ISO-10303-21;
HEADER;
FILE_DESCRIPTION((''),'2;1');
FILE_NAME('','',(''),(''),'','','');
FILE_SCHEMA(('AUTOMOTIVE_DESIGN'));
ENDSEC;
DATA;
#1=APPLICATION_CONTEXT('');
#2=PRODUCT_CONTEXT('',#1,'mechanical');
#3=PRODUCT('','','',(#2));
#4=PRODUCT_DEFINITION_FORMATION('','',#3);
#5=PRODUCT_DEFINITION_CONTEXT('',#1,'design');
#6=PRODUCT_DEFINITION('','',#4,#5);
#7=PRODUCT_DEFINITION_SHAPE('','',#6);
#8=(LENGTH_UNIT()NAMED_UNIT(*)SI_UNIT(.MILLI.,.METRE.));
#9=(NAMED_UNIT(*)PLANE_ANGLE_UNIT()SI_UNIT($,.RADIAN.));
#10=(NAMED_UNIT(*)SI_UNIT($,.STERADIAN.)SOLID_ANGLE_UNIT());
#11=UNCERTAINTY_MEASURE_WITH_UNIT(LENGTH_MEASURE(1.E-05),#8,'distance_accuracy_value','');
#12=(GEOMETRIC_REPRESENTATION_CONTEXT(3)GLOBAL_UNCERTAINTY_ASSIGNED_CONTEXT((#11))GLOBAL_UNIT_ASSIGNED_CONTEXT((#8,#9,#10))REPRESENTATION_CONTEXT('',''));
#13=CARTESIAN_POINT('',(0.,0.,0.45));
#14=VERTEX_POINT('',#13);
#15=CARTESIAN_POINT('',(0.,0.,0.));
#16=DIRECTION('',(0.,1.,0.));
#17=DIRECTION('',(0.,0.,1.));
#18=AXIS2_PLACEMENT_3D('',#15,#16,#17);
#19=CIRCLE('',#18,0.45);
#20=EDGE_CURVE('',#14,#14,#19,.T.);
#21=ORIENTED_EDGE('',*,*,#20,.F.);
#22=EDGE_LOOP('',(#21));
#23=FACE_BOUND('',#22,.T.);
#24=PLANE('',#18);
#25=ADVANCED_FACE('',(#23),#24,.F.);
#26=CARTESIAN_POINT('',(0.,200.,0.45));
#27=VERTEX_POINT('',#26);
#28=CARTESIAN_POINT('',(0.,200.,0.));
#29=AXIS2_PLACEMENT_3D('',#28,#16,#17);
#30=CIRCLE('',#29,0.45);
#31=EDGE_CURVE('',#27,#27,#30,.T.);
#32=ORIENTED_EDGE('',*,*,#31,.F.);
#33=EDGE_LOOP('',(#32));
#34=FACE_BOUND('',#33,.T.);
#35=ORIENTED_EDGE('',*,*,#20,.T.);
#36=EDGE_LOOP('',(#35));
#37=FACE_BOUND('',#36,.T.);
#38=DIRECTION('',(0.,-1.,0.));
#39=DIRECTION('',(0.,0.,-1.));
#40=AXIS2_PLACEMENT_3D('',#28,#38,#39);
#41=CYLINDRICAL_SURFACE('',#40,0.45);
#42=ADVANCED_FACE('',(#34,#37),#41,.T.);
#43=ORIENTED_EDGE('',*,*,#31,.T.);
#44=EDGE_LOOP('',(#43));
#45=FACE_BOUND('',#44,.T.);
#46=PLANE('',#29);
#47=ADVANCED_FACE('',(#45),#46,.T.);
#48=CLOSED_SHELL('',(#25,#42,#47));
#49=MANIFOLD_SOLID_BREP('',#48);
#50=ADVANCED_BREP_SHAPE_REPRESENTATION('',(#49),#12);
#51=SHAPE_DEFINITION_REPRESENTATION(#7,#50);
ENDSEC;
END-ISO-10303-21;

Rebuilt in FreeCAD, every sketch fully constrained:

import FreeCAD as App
import Part
import Sketcher
Q = App.Units.Quantity

doc = App.newDocument("Part")
body = doc.addObject("PartDesign::Body", "Body")

# Sketch on XZ plane
sketch1 = doc.addObject("Sketcher::SketchObject", "Sketch")
body.addObject(sketch1)
sketch1.AttachmentSupport = (doc.XZ_Plane, [""])
sketch1.MapMode = "FlatFace"
sketch1.addGeometry(Part.Circle(App.Vector(0, 0, 0), App.Vector(0, 0, 1), 0.45), False)
sketch1.addConstraint(Sketcher.Constraint("Coincident", 0, 3, -1, 1))
sketch1.addConstraint(Sketcher.Constraint("Diameter", 0, Q("0.9 mm")))
pad1 = doc.addObject("PartDesign::Pad", "Pad")
body.addObject(pad1)
pad1.Profile = sketch1
pad1.Length = 200
pad1.Reversed = True

doc.recompute()
